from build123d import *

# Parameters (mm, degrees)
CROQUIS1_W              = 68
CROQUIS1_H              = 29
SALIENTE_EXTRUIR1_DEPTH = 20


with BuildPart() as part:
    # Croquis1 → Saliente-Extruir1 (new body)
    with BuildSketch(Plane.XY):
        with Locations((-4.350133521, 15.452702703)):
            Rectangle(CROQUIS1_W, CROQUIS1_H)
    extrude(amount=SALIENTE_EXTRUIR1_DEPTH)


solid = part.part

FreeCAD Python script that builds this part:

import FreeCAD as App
import Part
import Sketcher

doc = App.newDocument("Part")
params = doc.addObject("Spreadsheet::Sheet", "Params")
for row, (alias, value) in enumerate([
    ("sketch1_width", "68 mm"),
    ("sketch1_height", "29 mm"),
    ("pad1_length", "20 mm"),
], start=1):
    params.set(f"A{row}", alias)
    params.set(f"B{row}", "=" + value)
    params.setAlias(f"B{row}", alias)

body = doc.addObject("PartDesign::Body", "Body")

# Sketch on XY plane
sketch1 = body.newObject("Sketcher::SketchObject", "Sketch")
sketch1.AttachmentSupport = (doc.getObject("XY_Plane"), [""])
sketch1.MapMode = "FlatFace"
sketch1.addGeometry(Part.LineSegment(App.Vector(-38, 30, 0), App.Vector(-38, 1, 0)), False)
sketch1.addGeometry(Part.LineSegment(App.Vector(-38, 1, 0), App.Vector(30, 1, 0)), False)
sketch1.addGeometry(Part.LineSegment(App.Vector(30, 1, 0), App.Vector(30, 30, 0)), False)
sketch1.addGeometry(Part.LineSegment(App.Vector(30, 30, 0), App.Vector(-38, 30, 0)), False)
sketch1.addConstraint(Sketcher.Constraint("Coincident", 0, 2, 1, 1))
sketch1.addConstraint(Sketcher.Constraint("Coincident", 1, 2, 2, 1))
sketch1.addConstraint(Sketcher.Constraint("Coincident", 2, 2, 3, 1))
sketch1.addConstraint(Sketcher.Constraint("Coincident", 3, 2, 0, 1))
sketch1.addConstraint(Sketcher.Constraint("Vertical", 0))
sketch1.addConstraint(Sketcher.Constraint("Horizontal", 1))
sketch1.addConstraint(Sketcher.Constraint("Vertical", 2))
sketch1.addConstraint(Sketcher.Constraint("Horizontal", 3))
sketch1.addConstraint(Sketcher.Constraint("DistanceX", 1, 1, 1, 2, 68.0))
sketch1.addConstraint(Sketcher.Constraint("DistanceY", 0, 2, 0, 1, 29.0))
sketch1.addConstraint(Sketcher.Constraint("DistanceX", 0, 2, -1, 1, 38.350134))
sketch1.addConstraint(Sketcher.Constraint("DistanceY", -1, 1, 0, 2, 0.952703))
sketch1.setExpression("Constraints[8]", "Params.sketch1_width")
sketch1.setExpression("Constraints[9]", "Params.sketch1_height")
pad1 = body.newObject("PartDesign::Pad", "Pad")
pad1.Profile = sketch1
pad1.setExpression("Length", "Params.pad1_length")

doc.recompute()
